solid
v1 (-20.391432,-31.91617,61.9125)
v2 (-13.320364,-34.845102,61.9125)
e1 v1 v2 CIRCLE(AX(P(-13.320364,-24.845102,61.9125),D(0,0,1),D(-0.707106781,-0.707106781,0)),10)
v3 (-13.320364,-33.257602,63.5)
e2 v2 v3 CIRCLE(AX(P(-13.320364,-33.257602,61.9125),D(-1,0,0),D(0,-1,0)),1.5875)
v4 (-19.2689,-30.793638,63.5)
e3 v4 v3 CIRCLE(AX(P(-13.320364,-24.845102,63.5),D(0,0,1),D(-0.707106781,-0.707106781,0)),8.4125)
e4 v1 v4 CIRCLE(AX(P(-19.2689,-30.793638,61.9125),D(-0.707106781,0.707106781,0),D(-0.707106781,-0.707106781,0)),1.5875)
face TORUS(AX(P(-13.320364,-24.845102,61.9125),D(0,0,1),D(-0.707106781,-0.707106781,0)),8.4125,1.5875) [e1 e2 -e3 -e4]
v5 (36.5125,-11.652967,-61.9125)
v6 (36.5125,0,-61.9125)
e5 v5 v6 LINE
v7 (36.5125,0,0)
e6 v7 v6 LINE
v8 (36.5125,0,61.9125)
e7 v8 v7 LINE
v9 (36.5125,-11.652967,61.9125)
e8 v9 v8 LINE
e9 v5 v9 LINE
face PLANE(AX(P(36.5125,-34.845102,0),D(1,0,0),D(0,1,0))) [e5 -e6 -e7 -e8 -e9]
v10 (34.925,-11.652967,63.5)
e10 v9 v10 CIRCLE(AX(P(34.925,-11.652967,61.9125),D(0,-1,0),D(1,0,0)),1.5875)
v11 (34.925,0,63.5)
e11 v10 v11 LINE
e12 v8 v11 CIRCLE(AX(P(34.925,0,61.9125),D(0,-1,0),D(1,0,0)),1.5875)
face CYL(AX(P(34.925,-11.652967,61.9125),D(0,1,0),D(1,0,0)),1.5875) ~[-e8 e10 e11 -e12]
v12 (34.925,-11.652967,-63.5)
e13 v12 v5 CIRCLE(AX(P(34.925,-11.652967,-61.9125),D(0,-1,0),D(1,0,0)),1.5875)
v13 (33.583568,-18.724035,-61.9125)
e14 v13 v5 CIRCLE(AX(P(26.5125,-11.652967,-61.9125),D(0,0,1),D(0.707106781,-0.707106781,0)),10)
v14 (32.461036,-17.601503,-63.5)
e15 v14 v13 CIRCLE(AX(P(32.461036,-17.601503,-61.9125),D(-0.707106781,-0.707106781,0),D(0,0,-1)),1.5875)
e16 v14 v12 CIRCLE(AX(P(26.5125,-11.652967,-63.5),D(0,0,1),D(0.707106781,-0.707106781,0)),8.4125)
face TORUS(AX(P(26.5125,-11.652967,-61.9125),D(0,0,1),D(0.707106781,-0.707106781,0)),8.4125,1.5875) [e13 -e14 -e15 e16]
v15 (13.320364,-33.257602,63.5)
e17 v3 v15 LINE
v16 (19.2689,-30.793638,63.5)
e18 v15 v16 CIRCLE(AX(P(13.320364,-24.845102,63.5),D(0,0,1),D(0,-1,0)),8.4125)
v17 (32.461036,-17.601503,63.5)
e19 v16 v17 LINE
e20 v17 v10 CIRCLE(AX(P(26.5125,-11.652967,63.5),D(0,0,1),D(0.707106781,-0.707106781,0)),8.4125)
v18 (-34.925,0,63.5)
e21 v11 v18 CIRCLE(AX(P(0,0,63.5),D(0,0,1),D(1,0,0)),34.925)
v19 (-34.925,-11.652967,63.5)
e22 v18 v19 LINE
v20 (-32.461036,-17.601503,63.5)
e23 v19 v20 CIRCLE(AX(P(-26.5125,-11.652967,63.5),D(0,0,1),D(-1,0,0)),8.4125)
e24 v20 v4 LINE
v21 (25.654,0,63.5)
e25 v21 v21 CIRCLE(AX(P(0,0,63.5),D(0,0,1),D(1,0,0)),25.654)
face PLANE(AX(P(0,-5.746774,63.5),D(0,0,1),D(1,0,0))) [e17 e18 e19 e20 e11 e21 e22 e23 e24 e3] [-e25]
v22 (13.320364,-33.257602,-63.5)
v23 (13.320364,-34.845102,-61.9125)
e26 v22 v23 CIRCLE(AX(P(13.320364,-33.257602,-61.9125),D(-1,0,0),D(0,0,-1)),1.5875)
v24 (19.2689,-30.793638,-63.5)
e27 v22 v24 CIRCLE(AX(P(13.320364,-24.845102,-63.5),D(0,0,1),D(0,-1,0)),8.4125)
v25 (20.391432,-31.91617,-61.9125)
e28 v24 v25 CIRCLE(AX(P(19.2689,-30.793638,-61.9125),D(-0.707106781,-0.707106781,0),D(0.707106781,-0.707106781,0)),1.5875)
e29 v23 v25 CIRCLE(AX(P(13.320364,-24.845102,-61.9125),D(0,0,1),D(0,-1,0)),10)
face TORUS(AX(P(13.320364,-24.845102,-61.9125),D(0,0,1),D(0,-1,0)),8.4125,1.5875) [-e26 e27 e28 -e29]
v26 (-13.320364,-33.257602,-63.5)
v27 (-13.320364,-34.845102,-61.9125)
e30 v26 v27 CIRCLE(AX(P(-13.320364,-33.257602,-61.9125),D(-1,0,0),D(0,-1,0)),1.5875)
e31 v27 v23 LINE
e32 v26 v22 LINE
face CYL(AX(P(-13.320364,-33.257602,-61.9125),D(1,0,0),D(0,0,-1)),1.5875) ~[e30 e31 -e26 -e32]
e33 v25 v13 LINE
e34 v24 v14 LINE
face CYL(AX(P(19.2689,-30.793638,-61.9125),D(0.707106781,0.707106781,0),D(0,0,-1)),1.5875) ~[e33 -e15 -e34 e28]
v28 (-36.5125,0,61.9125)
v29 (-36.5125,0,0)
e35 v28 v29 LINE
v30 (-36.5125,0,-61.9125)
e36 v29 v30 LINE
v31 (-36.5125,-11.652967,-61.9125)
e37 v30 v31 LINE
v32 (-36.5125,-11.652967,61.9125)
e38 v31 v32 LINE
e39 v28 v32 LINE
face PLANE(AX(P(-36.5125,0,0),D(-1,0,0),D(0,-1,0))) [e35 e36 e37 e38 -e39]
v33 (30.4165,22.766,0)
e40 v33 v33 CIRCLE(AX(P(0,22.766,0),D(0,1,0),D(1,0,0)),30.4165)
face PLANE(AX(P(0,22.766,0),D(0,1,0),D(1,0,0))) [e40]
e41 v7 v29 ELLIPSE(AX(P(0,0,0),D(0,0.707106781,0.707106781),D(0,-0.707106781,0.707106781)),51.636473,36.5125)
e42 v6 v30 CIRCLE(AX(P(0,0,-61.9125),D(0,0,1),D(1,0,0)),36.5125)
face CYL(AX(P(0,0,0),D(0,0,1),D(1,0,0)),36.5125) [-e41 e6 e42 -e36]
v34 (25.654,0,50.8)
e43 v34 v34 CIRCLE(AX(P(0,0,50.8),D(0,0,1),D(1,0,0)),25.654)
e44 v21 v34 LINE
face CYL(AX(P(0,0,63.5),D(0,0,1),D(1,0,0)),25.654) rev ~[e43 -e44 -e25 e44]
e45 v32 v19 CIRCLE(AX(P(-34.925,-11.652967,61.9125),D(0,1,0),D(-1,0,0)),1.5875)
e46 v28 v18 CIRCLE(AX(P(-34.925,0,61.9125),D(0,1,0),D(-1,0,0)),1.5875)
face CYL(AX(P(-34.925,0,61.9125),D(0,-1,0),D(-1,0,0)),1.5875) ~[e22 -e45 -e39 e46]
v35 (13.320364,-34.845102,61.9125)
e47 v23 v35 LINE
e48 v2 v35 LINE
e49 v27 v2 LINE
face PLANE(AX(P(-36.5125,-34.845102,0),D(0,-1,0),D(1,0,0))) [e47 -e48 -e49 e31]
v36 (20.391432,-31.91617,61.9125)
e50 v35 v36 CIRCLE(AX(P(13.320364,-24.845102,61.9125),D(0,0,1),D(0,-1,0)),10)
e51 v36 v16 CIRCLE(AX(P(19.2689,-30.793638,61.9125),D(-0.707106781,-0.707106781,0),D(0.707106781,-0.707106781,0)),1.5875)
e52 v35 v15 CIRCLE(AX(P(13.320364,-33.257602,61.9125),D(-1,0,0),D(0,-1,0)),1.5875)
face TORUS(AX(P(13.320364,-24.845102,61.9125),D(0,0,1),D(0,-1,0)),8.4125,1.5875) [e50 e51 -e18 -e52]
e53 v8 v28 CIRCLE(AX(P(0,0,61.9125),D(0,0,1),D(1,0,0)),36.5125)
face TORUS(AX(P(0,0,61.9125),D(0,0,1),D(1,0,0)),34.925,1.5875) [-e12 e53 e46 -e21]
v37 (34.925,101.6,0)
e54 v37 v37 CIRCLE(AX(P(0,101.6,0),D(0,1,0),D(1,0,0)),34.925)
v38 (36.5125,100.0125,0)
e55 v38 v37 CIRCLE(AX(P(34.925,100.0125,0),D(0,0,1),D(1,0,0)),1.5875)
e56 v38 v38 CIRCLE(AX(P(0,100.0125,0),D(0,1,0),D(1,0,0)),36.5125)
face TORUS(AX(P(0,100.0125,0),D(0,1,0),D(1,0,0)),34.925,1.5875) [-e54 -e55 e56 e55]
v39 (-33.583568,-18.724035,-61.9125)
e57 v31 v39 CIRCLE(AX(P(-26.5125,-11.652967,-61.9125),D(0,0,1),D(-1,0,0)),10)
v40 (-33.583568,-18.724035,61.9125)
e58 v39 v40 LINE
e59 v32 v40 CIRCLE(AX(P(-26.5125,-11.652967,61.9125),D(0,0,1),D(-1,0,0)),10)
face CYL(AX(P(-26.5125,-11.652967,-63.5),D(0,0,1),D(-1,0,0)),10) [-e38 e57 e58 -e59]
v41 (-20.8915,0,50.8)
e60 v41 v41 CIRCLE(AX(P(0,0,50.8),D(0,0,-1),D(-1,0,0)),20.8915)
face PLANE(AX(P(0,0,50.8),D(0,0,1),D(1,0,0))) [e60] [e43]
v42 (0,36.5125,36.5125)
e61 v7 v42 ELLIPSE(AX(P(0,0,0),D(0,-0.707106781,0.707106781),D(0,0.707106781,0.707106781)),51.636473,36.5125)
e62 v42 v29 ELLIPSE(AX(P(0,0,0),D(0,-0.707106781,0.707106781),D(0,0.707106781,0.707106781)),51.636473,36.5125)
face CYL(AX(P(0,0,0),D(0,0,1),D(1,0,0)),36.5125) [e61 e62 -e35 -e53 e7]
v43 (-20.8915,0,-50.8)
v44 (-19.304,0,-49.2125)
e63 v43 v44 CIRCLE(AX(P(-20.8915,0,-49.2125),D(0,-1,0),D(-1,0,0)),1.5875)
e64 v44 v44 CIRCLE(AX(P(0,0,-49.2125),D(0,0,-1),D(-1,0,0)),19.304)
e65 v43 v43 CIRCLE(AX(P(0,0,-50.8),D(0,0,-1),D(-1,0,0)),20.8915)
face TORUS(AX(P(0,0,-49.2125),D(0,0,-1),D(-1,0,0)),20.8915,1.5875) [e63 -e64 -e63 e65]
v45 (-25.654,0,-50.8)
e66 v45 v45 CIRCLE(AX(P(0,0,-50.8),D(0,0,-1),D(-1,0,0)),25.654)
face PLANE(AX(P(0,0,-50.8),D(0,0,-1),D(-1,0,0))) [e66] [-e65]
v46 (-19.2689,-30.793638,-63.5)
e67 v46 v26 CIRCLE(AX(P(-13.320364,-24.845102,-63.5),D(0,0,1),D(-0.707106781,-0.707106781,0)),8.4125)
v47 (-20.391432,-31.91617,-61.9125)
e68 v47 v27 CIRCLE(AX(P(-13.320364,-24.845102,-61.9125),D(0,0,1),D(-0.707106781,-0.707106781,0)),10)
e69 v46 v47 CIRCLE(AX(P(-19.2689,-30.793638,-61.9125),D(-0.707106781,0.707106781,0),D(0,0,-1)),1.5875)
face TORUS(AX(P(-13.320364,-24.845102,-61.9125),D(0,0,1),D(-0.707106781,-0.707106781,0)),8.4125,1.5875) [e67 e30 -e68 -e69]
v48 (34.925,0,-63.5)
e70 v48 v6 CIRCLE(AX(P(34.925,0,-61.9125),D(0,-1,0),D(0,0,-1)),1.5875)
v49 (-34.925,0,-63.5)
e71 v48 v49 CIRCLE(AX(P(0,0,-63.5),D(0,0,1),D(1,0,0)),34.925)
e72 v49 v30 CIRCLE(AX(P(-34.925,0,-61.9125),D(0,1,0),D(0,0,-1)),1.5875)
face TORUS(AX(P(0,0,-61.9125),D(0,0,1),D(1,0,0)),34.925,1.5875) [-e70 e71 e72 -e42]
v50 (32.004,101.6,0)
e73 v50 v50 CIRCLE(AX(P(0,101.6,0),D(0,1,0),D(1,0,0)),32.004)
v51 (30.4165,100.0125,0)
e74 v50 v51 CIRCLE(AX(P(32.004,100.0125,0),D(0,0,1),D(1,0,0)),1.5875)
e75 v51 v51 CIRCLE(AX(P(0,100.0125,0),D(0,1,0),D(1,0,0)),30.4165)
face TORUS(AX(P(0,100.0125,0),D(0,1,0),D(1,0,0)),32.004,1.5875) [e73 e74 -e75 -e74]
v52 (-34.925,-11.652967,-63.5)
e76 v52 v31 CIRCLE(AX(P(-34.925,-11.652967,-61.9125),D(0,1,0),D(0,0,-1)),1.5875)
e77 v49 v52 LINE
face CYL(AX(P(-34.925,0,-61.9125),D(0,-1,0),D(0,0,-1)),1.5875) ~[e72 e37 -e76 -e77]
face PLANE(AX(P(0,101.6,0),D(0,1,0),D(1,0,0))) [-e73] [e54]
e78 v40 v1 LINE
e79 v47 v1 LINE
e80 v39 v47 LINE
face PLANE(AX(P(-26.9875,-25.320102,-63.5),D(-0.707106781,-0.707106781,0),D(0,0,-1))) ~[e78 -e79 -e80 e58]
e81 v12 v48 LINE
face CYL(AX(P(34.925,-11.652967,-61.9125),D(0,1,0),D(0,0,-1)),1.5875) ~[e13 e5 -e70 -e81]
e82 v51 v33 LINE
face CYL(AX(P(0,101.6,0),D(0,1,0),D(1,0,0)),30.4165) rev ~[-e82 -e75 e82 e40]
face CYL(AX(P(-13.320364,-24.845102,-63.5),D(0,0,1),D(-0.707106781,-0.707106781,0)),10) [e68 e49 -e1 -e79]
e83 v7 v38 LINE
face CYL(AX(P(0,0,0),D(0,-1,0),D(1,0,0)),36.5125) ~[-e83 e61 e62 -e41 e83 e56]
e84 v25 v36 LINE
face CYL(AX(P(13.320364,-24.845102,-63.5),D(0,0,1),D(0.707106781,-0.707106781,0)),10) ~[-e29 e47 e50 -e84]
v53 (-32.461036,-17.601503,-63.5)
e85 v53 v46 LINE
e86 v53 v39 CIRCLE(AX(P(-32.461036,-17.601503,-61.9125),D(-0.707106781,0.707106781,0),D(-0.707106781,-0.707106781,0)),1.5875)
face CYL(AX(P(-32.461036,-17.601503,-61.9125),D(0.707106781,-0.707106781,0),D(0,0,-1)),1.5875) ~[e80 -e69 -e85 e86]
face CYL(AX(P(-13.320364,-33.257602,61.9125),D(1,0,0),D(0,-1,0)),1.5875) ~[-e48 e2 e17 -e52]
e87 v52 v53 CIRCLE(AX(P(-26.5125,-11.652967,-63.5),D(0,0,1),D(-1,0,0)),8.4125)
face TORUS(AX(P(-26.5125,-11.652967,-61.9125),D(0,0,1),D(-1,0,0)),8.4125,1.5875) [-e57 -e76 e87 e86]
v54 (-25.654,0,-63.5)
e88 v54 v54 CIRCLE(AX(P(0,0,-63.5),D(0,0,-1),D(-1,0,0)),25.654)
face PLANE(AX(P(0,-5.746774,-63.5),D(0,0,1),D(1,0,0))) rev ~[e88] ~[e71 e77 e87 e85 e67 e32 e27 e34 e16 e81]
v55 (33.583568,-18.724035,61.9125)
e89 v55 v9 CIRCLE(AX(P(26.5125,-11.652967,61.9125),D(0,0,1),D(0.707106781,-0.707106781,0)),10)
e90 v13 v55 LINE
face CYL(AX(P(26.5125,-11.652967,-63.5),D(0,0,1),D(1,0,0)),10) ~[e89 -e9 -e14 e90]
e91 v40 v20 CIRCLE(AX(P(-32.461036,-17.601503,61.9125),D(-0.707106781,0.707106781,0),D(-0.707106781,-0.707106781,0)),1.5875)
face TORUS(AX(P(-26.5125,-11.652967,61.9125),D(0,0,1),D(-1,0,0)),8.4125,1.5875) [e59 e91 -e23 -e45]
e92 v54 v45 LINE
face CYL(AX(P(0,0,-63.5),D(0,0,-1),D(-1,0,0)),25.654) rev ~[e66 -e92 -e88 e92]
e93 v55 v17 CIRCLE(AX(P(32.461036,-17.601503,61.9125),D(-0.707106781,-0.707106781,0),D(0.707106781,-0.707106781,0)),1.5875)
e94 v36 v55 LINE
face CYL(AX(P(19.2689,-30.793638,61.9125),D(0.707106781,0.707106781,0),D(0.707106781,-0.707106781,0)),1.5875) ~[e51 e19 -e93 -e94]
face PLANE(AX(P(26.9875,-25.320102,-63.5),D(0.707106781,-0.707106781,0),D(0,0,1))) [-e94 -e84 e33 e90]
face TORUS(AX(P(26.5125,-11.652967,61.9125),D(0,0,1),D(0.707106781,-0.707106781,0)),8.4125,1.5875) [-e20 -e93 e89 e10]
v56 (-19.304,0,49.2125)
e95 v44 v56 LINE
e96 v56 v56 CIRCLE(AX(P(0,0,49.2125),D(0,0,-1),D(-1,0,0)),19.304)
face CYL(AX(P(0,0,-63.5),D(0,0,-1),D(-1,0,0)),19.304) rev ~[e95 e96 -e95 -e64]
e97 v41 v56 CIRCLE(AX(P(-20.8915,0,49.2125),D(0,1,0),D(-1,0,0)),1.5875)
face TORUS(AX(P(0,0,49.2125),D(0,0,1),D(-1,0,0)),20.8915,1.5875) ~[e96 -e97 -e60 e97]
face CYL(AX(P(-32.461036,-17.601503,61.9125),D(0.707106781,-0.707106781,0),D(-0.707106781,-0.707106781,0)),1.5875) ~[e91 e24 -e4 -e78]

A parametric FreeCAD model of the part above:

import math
import FreeCAD as App
import Part
import Sketcher

V = App.Vector
Q = App.Units.Quantity


def edges_at(feature, points):
    """Names of the edges that pass closest to the given points."""
    edges = feature.Shape.Edges
    near = lambda p: min(range(len(edges)), key=lambda i: edges[i].distToShape(Part.Vertex(*p))[0])
    return sorted({f"Edge{near(p) + 1}" for p in points})

doc = App.newDocument("Part")
body = doc.addObject("PartDesign::Body", "Body")

sketch1 = doc.addObject("Sketcher::SketchObject", "Sketch")
body.addObject(sketch1)
sketch1.AttachmentSupport = (doc.XY_Plane, [""])
sketch1.MapMode = "FlatFace"
sketch1.addGeometry([
    Part.LineSegment(V(-37, 0, 0), V(-37, -35, 0)),
    Part.LineSegment(V(-37, -35, 0), V(37, -35, 0)),
    Part.LineSegment(V(37, -35, 0), V(37, 0, 0)),
    Part.ArcOfCircle(Part.Circle(V(0, 0, 0), V(0, 0, 1), 37), math.radians(0), math.radians(180)),
], False)
sketch1.addConstraint([
    Sketcher.Constraint("Coincident", 0, 2, 1, 1),
    Sketcher.Constraint("Coincident", 1, 2, 2, 1),
    Sketcher.Constraint("Tangent", 2, 2, 3, 1),
    Sketcher.Constraint("Tangent", 3, 2, 0, 1),
    Sketcher.Constraint("Vertical", 0),
    Sketcher.Constraint("Horizontal", 1),
    Sketcher.Constraint("Vertical", 2),
    Sketcher.Constraint("Coincident", 3, 3, -1, 1),
    Sketcher.Constraint("Radius", 3, Q("1.4375 in")),
    Sketcher.Constraint("DistanceY", 0, 2, 0, 1, Q("34.845102 mm")),
])
pad1 = doc.addObject("PartDesign::Pad", "Pad")
body.addObject(pad1)
pad1.Profile = sketch1
pad1.Type = "TwoLengths"
pad1.Length = Q("2.5 in")
pad1.Length2 = Q("2.5 in")

sketch2 = doc.addObject("Sketcher::SketchObject", "Sketch001")
body.addObject(sketch2)
sketch2.AttachmentSupport = (doc.XZ_Plane, [""])
sketch2.MapMode = "FlatFace"
sketch2.addGeometry(Part.Circle(V(0, 0, 0), V(0, 0, 1), 37), False)
sketch2.addConstraint([
    Sketcher.Constraint("Coincident", 0, 3, -1, 1),
    Sketcher.Constraint("Diameter", 0, Q("2.875 in")),
])
pad2 = doc.addObject("PartDesign::Pad", "Pad001")
body.addObject(pad2)
pad2.Profile = sketch2
pad2.Length = Q("4 in")
pad2.Reversed = True

sketch3 = doc.addObject("Sketcher::SketchObject", "Sketch002")
body.addObject(sketch3)
sketch3.AttachmentSupport = (doc.XY_Plane, [""])
sketch3.MapMode = "FlatFace"
sketch3.AttachmentOffset = App.Placement(V(0, 0, -2.5 * 25.4), App.Rotation())
sketch3.addGeometry(Part.Circle(V(0, 0, 0), V(0, 0, 1), 19), False)
sketch3.addConstraint([
    Sketcher.Constraint("Coincident", 0, 3, -1, 1),
    Sketcher.Constraint("Diameter", 0, Q("1.52 in")),
])
pocket1 = doc.addObject("PartDesign::Pocket", "Pocket")
body.addObject(pocket1)
pocket1.Profile = sketch3
pocket1.Type = "ThroughAll"
pocket1.Reversed = True

sketch4 = doc.addObject("Sketcher::SketchObject", "Sketch003")
body.addObject(sketch4)
sketch4.AttachmentSupport = (doc.XY_Plane, [""])
sketch4.MapMode = "FlatFace"
sketch4.AttachmentOffset = App.Placement(V(0, 0, -2.5 * 25.4), App.Rotation())
sketch4.addGeometry(Part.Circle(V(0, 0, 0), V(0, 0, 1), 26), False)
sketch4.addConstraint([
    Sketcher.Constraint("Coincident", 0, 3, -1, 1),
    Sketcher.Constraint("Diameter", 0, Q("2.02 in")),
])
pocket2 = doc.addObject("PartDesign::Pocket", "Pocket001")
body.addObject(pocket2)
pocket2.Profile = sketch4
pocket2.Length = Q("0.5 in")
pocket2.Reversed = True

sketch5 = doc.addObject("Sketcher::SketchObject", "Sketch004")
body.addObject(sketch5)
sketch5.AttachmentSupport = (doc.XY_Plane, [""])
sketch5.MapMode = "FlatFace"
sketch5.AttachmentOffset = App.Placement(V(0, 0, 2.5 * 25.4), App.Rotation())
sketch5.addGeometry(Part.Circle(V(0, 0, 0), V(0, 0, 1), 26), False)
sketch5.addConstraint([
    Sketcher.Constraint("Coincident", 0, 3, -1, 1),
    Sketcher.Constraint("Diameter", 0, Q("2.02 in")),
])
pocket3 = doc.addObject("PartDesign::Pocket", "Pocket002")
body.addObject(pocket3)
pocket3.Profile = sketch5
pocket3.Length = Q("0.5 in")

sketch6 = doc.addObject("Sketcher::SketchObject", "Sketch005")
body.addObject(sketch6)
sketch6.AttachmentSupport = (doc.XZ_Plane, [""])
sketch6.MapMode = "FlatFace"
sketch6.AttachmentOffset = App.Placement(V(0, 0, -4 * 25.4), App.Rotation())
sketch6.addGeometry(Part.Circle(V(0, 0, 0), V(0, 0, 1), 30), False)
sketch6.addConstraint([
    Sketcher.Constraint("Coincident", 0, 3, -1, 1),
    Sketcher.Constraint("Diameter", 0, Q("2.395 in")),
])
pocket4 = doc.addObject("PartDesign::Pocket", "Pocket003")
body.addObject(pocket4)
pocket4.Profile = sketch6
pocket4.Length = 78.834
pocket4.Reversed = True
doc.recompute()

chamfer = doc.addObject("PartDesign::Chamfer", "Chamfer")
body.addObject(chamfer)
chamfer.Base = (pocket4, edges_at(pocket4, [(-36.513, -34.845, 0), (36.513, -34.845, 0)]))
chamfer.Size = Q("0.75 in")
doc.recompute()

fillet = doc.addObject("PartDesign::Fillet", "Fillet")
body.addObject(fillet)
fillet.Base = (chamfer, edges_at(chamfer, [
    (-17.462, -34.845, 0),
    (17.462, -34.845, 0),
    (36.513, -15.795, 0),
    (-36.513, -15.795, 0),
]))
fillet.Radius = 10
doc.recompute()

fillet2 = doc.addObject("PartDesign::Fillet", "Fillet001")
body.addObject(fillet2)
fillet2.Base = (fillet, edges_at(fillet, [
    (-36.513, -5.826, -63.5),
    (36.513, -5.826, 63.5),
    (0, 36.513, 63.5),
    (-36.513, -5.826, 63.5),
    (0, 36.513, -63.5),
    (-36.513, 101.6, 0),
    (19.304, 0, -50.8),
    (36.513, -5.826, -63.5),
    (19.304, 0, 50.8),
    (-30.416, 101.6, 0),
    (26.988, -25.32, -63.5),
    (0, -34.845, -63.5),
    (-26.988, -25.32, -63.5),
    (-35.751, -15.48, -63.5),
    (-17.147, -34.084, -63.5),
    (17.147, -34.084, -63.5),
    (35.751, -15.48, -63.5),
    (26.988, -25.32, 63.5),
    (0, -34.845, 63.5),
    (-26.988, -25.32, 63.5),
    (-35.751, -15.48, 63.5),
    (-17.147, -34.084, 63.5),
    (17.147, -34.084, 63.5),
    (35.751, -15.48, 63.5),
]))
fillet2.Radius = Q("0.0625 in")

doc.recompute()
